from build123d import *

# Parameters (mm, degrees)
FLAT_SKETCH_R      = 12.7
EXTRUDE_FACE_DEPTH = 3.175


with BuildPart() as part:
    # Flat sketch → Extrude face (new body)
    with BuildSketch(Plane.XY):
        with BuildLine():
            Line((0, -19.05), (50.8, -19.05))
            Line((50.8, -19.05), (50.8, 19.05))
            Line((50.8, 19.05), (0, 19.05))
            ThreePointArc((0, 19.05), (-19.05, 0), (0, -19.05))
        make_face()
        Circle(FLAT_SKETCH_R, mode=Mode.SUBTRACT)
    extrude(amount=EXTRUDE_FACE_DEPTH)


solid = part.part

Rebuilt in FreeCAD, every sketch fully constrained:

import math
import FreeCAD as App
import Part
import Sketcher
from FreeCAD import Vector
Q = App.Units.Quantity

doc = App.newDocument("Part")
body = doc.addObject("PartDesign::Body", "Body")

# Sketch on XY plane
sketch1 = doc.addObject("Sketcher::SketchObject", "Sketch")
body.addObject(sketch1)
sketch1.AttachmentSupport = (doc.XY_Plane, [""])
sketch1.MapMode = "FlatFace"
sketch1.addGeometry(Part.LineSegment(Vector(0, -19, 0), Vector(51, -19, 0)), False)
sketch1.addGeometry(Part.LineSegment(Vector(51, -19, 0), Vector(51, 19, 0)), False)
sketch1.addGeometry(Part.LineSegment(Vector(51, 19, 0), Vector(0, 19, 0)), False)
sketch1.addGeometry(Part.ArcOfCircle(Part.Circle(Vector(0, 0, 0), Vector(0, 0, 1), 19), math.radians(90), math.radians(270)), False)
sketch1.addGeometry(Part.Circle(Vector(0, 0, 0), Vector(0, 0, 1), 13), False)
sketch1.addConstraint(Sketcher.Constraint("Coincident", 0, 2, 1, 1))
sketch1.addConstraint(Sketcher.Constraint("Coincident", 1, 2, 2, 1))
sketch1.addConstraint(Sketcher.Constraint("Tangent", 2, 2, 3, 1))
sketch1.addConstraint(Sketcher.Constraint("Tangent", 3, 2, 0, 1))
sketch1.addConstraint(Sketcher.Constraint("Horizontal", 0))
sketch1.addConstraint(Sketcher.Constraint("Vertical", 1))
sketch1.addConstraint(Sketcher.Constraint("Horizontal", 2))
sketch1.addConstraint(Sketcher.Constraint("Coincident", 3, 3, -1, 1))
sketch1.addConstraint(Sketcher.Constraint("Coincident", 4, 3, -1, 1))
sketch1.addConstraint(Sketcher.Constraint("Diameter", 4, Q("1 in")))
sketch1.addConstraint(Sketcher.Constraint("DistanceX", 0, 1, 0, 2, Q("2 in")))
sketch1.addConstraint(Sketcher.Constraint("Radius", 3, Q("0.75 in")))
pad1 = doc.addObject("PartDesign::Pad", "Pad")
body.addObject(pad1)
pad1.Profile = sketch1
pad1.Length = Q("0.125 in")

doc.recompute()
